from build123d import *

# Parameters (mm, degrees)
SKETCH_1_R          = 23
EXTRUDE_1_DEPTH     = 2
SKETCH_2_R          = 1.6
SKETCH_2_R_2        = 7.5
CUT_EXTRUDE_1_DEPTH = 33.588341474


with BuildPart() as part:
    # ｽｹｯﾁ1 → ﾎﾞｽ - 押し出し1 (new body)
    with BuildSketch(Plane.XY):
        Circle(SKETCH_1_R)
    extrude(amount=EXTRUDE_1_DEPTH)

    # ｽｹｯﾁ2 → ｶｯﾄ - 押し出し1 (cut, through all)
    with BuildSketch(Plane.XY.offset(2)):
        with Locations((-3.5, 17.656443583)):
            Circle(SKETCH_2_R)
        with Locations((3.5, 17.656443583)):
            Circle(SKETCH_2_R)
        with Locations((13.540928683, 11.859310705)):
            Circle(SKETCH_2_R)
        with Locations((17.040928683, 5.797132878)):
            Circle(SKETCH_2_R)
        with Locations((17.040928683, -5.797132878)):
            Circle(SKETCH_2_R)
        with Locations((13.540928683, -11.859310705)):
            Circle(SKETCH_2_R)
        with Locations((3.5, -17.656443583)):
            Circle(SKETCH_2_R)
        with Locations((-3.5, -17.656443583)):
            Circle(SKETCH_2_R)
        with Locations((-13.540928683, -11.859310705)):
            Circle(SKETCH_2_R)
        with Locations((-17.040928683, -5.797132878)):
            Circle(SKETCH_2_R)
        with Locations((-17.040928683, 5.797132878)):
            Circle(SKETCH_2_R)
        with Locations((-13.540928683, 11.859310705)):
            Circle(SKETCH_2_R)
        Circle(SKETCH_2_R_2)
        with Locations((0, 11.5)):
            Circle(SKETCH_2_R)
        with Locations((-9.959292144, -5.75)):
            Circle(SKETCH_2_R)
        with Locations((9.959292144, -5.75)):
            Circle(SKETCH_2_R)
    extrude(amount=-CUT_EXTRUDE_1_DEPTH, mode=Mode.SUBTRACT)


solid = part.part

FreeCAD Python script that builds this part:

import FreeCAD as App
import Part
import Sketcher
from FreeCAD import Vector

doc = App.newDocument("Part")
body = doc.addObject("PartDesign::Body", "Body")

# Sketch on XY plane
sketch1 = body.newObject("Sketcher::SketchObject", "Sketch")
sketch1.AttachmentSupport = (doc.getObject("XY_Plane"), [""])
sketch1.MapMode = "FlatFace"
sketch1.addGeometry(Part.Circle(Vector(0, 0, 0), Vector(0, 0, 1), 23), False)
sketch1.addConstraint([
    Sketcher.Constraint("Coincident", 0, 3, -1, 1),
    Sketcher.Constraint("Diameter", 0, 46.0),
])
pad1 = body.newObject("PartDesign::Pad", "Pad")
pad1.Profile = sketch1
pad1.Length = 2

# Sketch on XY plane
sketch2 = body.newObject("Sketcher::SketchObject", "Sketch001")
sketch2.AttachmentSupport = (doc.getObject("XY_Plane"), [""])
sketch2.MapMode = "FlatFace"
sketch2.AttachmentOffset = App.Placement(Vector(0, 0, 2), App.Rotation())
sketch2.addGeometry([
    Part.Circle(Vector(-3.5, 17.7, 0), Vector(0, 0, 1), 1.6),  # 0
    Part.Circle(Vector(3.5, 17.7, 0), Vector(0, 0, 1), 1.6),  # 1
    Part.Circle(Vector(13.5, 11.9, 0), Vector(0, 0, 1), 1.6),  # 2
    Part.Circle(Vector(17, 5.8, 0), Vector(0, 0, 1), 1.6),  # 3
    Part.Circle(Vector(17, -5.8, 0), Vector(0, 0, 1), 1.6),  # 4
    Part.Circle(Vector(13.5, -11.9, 0), Vector(0, 0, 1), 1.6),  # 5
    Part.Circle(Vector(3.5, -17.7, 0), Vector(0, 0, 1), 1.6),  # 6
    Part.Circle(Vector(-3.5, -17.7, 0), Vector(0, 0, 1), 1.6),  # 7
    Part.Circle(Vector(-13.5, -11.9, 0), Vector(0, 0, 1), 1.6),  # 8
    Part.Circle(Vector(-17, -5.8, 0), Vector(0, 0, 1), 1.6),  # 9
    Part.Circle(Vector(-17, 5.8, 0), Vector(0, 0, 1), 1.6),  # 10
    Part.Circle(Vector(-13.5, 11.9, 0), Vector(0, 0, 1), 1.6),  # 11
    Part.Circle(Vector(0, 0, 0), Vector(0, 0, 1), 7.5),  # 12
    Part.Circle(Vector(0, 11.5, 0), Vector(0, 0, 1), 1.6),  # 13
    Part.Circle(Vector(-10, -5.8, 0), Vector(0, 0, 1), 1.6),  # 14
    Part.Circle(Vector(10, -5.8, 0), Vector(0, 0, 1), 1.6),  # 15
], False)
sketch2.addConstraint([
    Sketcher.Constraint("Coincident", 12, 3, -1, 1),
    Sketcher.Constraint("Equal", 0, 1),
    Sketcher.Constraint("Equal", 1, 2),
    Sketcher.Constraint("Equal", 2, 3),
    Sketcher.Constraint("Equal", 3, 4),
    Sketcher.Constraint("Equal", 4, 5),
    Sketcher.Constraint("Equal", 5, 6),
    Sketcher.Constraint("Equal", 6, 7),
    Sketcher.Constraint("Equal", 7, 8),
    Sketcher.Constraint("Equal", 8, 9),
    Sketcher.Constraint("Equal", 9, 10),
    Sketcher.Constraint("Equal", 10, 11),
    Sketcher.Constraint("Equal", 11, 13),
    Sketcher.Constraint("Equal", 13, 14),
    Sketcher.Constraint("Equal", 14, 15),
    Sketcher.Constraint("Symmetric", 0, 3, 6, 3, -1, 1),
    Sketcher.Constraint("Symmetric", 1, 3, 7, 3, -1, 1),
    Sketcher.Constraint("Symmetric", 2, 3, 8, 3, -1, 1),
    Sketcher.Constraint("Symmetric", 3, 3, 9, 3, -1, 1),
    Sketcher.Constraint("Symmetric", 4, 3, 10, 3, -1, 1),
    Sketcher.Constraint("Symmetric", 5, 3, 11, 3, -1, 1),
    Sketcher.Constraint("Symmetric", 0, 3, 1, 3, -2),
    Sketcher.Constraint("Symmetric", 5, 3, 8, 3, -2),
    Sketcher.Constraint("Symmetric", 4, 3, 9, 3, -2),
    Sketcher.Constraint("Symmetric", 14, 3, 15, 3, -2),
    Sketcher.Constraint("PointOnObject", 13, 3, -2),
    Sketcher.Constraint("Diameter", 12, 15.0),
    Sketcher.Constraint("Diameter", 0, 3.2),
    Sketcher.Constraint("DistanceX", 0, 3, 1, 3, 7.0),
    Sketcher.Constraint("DistanceY", -1, 1, 13, 3, 11.5),
    Sketcher.Constraint("DistanceX", 2, 3, 3, 3, 3.5),
    Sketcher.Constraint("DistanceY", 14, 3, -1, 1, 5.75),
    Sketcher.Constraint("DistanceX", -1, 1, 2, 3, 13.540929),
    Sketcher.Constraint("DistanceY", -1, 1, 2, 3, 11.859311),
    Sketcher.Constraint("DistanceY", 3, 3, 1, 3, 11.859311),
    Sketcher.Constraint("DistanceY", -1, 1, 0, 3, 17.656444),
    Sketcher.Constraint("DistanceX", 14, 3, -1, 1, 9.959292),
])
pocket1 = body.newObject("PartDesign::Pocket", "Pocket")
pocket1.Profile = sketch2
pocket1.Type = "ThroughAll"

doc.recompute()
